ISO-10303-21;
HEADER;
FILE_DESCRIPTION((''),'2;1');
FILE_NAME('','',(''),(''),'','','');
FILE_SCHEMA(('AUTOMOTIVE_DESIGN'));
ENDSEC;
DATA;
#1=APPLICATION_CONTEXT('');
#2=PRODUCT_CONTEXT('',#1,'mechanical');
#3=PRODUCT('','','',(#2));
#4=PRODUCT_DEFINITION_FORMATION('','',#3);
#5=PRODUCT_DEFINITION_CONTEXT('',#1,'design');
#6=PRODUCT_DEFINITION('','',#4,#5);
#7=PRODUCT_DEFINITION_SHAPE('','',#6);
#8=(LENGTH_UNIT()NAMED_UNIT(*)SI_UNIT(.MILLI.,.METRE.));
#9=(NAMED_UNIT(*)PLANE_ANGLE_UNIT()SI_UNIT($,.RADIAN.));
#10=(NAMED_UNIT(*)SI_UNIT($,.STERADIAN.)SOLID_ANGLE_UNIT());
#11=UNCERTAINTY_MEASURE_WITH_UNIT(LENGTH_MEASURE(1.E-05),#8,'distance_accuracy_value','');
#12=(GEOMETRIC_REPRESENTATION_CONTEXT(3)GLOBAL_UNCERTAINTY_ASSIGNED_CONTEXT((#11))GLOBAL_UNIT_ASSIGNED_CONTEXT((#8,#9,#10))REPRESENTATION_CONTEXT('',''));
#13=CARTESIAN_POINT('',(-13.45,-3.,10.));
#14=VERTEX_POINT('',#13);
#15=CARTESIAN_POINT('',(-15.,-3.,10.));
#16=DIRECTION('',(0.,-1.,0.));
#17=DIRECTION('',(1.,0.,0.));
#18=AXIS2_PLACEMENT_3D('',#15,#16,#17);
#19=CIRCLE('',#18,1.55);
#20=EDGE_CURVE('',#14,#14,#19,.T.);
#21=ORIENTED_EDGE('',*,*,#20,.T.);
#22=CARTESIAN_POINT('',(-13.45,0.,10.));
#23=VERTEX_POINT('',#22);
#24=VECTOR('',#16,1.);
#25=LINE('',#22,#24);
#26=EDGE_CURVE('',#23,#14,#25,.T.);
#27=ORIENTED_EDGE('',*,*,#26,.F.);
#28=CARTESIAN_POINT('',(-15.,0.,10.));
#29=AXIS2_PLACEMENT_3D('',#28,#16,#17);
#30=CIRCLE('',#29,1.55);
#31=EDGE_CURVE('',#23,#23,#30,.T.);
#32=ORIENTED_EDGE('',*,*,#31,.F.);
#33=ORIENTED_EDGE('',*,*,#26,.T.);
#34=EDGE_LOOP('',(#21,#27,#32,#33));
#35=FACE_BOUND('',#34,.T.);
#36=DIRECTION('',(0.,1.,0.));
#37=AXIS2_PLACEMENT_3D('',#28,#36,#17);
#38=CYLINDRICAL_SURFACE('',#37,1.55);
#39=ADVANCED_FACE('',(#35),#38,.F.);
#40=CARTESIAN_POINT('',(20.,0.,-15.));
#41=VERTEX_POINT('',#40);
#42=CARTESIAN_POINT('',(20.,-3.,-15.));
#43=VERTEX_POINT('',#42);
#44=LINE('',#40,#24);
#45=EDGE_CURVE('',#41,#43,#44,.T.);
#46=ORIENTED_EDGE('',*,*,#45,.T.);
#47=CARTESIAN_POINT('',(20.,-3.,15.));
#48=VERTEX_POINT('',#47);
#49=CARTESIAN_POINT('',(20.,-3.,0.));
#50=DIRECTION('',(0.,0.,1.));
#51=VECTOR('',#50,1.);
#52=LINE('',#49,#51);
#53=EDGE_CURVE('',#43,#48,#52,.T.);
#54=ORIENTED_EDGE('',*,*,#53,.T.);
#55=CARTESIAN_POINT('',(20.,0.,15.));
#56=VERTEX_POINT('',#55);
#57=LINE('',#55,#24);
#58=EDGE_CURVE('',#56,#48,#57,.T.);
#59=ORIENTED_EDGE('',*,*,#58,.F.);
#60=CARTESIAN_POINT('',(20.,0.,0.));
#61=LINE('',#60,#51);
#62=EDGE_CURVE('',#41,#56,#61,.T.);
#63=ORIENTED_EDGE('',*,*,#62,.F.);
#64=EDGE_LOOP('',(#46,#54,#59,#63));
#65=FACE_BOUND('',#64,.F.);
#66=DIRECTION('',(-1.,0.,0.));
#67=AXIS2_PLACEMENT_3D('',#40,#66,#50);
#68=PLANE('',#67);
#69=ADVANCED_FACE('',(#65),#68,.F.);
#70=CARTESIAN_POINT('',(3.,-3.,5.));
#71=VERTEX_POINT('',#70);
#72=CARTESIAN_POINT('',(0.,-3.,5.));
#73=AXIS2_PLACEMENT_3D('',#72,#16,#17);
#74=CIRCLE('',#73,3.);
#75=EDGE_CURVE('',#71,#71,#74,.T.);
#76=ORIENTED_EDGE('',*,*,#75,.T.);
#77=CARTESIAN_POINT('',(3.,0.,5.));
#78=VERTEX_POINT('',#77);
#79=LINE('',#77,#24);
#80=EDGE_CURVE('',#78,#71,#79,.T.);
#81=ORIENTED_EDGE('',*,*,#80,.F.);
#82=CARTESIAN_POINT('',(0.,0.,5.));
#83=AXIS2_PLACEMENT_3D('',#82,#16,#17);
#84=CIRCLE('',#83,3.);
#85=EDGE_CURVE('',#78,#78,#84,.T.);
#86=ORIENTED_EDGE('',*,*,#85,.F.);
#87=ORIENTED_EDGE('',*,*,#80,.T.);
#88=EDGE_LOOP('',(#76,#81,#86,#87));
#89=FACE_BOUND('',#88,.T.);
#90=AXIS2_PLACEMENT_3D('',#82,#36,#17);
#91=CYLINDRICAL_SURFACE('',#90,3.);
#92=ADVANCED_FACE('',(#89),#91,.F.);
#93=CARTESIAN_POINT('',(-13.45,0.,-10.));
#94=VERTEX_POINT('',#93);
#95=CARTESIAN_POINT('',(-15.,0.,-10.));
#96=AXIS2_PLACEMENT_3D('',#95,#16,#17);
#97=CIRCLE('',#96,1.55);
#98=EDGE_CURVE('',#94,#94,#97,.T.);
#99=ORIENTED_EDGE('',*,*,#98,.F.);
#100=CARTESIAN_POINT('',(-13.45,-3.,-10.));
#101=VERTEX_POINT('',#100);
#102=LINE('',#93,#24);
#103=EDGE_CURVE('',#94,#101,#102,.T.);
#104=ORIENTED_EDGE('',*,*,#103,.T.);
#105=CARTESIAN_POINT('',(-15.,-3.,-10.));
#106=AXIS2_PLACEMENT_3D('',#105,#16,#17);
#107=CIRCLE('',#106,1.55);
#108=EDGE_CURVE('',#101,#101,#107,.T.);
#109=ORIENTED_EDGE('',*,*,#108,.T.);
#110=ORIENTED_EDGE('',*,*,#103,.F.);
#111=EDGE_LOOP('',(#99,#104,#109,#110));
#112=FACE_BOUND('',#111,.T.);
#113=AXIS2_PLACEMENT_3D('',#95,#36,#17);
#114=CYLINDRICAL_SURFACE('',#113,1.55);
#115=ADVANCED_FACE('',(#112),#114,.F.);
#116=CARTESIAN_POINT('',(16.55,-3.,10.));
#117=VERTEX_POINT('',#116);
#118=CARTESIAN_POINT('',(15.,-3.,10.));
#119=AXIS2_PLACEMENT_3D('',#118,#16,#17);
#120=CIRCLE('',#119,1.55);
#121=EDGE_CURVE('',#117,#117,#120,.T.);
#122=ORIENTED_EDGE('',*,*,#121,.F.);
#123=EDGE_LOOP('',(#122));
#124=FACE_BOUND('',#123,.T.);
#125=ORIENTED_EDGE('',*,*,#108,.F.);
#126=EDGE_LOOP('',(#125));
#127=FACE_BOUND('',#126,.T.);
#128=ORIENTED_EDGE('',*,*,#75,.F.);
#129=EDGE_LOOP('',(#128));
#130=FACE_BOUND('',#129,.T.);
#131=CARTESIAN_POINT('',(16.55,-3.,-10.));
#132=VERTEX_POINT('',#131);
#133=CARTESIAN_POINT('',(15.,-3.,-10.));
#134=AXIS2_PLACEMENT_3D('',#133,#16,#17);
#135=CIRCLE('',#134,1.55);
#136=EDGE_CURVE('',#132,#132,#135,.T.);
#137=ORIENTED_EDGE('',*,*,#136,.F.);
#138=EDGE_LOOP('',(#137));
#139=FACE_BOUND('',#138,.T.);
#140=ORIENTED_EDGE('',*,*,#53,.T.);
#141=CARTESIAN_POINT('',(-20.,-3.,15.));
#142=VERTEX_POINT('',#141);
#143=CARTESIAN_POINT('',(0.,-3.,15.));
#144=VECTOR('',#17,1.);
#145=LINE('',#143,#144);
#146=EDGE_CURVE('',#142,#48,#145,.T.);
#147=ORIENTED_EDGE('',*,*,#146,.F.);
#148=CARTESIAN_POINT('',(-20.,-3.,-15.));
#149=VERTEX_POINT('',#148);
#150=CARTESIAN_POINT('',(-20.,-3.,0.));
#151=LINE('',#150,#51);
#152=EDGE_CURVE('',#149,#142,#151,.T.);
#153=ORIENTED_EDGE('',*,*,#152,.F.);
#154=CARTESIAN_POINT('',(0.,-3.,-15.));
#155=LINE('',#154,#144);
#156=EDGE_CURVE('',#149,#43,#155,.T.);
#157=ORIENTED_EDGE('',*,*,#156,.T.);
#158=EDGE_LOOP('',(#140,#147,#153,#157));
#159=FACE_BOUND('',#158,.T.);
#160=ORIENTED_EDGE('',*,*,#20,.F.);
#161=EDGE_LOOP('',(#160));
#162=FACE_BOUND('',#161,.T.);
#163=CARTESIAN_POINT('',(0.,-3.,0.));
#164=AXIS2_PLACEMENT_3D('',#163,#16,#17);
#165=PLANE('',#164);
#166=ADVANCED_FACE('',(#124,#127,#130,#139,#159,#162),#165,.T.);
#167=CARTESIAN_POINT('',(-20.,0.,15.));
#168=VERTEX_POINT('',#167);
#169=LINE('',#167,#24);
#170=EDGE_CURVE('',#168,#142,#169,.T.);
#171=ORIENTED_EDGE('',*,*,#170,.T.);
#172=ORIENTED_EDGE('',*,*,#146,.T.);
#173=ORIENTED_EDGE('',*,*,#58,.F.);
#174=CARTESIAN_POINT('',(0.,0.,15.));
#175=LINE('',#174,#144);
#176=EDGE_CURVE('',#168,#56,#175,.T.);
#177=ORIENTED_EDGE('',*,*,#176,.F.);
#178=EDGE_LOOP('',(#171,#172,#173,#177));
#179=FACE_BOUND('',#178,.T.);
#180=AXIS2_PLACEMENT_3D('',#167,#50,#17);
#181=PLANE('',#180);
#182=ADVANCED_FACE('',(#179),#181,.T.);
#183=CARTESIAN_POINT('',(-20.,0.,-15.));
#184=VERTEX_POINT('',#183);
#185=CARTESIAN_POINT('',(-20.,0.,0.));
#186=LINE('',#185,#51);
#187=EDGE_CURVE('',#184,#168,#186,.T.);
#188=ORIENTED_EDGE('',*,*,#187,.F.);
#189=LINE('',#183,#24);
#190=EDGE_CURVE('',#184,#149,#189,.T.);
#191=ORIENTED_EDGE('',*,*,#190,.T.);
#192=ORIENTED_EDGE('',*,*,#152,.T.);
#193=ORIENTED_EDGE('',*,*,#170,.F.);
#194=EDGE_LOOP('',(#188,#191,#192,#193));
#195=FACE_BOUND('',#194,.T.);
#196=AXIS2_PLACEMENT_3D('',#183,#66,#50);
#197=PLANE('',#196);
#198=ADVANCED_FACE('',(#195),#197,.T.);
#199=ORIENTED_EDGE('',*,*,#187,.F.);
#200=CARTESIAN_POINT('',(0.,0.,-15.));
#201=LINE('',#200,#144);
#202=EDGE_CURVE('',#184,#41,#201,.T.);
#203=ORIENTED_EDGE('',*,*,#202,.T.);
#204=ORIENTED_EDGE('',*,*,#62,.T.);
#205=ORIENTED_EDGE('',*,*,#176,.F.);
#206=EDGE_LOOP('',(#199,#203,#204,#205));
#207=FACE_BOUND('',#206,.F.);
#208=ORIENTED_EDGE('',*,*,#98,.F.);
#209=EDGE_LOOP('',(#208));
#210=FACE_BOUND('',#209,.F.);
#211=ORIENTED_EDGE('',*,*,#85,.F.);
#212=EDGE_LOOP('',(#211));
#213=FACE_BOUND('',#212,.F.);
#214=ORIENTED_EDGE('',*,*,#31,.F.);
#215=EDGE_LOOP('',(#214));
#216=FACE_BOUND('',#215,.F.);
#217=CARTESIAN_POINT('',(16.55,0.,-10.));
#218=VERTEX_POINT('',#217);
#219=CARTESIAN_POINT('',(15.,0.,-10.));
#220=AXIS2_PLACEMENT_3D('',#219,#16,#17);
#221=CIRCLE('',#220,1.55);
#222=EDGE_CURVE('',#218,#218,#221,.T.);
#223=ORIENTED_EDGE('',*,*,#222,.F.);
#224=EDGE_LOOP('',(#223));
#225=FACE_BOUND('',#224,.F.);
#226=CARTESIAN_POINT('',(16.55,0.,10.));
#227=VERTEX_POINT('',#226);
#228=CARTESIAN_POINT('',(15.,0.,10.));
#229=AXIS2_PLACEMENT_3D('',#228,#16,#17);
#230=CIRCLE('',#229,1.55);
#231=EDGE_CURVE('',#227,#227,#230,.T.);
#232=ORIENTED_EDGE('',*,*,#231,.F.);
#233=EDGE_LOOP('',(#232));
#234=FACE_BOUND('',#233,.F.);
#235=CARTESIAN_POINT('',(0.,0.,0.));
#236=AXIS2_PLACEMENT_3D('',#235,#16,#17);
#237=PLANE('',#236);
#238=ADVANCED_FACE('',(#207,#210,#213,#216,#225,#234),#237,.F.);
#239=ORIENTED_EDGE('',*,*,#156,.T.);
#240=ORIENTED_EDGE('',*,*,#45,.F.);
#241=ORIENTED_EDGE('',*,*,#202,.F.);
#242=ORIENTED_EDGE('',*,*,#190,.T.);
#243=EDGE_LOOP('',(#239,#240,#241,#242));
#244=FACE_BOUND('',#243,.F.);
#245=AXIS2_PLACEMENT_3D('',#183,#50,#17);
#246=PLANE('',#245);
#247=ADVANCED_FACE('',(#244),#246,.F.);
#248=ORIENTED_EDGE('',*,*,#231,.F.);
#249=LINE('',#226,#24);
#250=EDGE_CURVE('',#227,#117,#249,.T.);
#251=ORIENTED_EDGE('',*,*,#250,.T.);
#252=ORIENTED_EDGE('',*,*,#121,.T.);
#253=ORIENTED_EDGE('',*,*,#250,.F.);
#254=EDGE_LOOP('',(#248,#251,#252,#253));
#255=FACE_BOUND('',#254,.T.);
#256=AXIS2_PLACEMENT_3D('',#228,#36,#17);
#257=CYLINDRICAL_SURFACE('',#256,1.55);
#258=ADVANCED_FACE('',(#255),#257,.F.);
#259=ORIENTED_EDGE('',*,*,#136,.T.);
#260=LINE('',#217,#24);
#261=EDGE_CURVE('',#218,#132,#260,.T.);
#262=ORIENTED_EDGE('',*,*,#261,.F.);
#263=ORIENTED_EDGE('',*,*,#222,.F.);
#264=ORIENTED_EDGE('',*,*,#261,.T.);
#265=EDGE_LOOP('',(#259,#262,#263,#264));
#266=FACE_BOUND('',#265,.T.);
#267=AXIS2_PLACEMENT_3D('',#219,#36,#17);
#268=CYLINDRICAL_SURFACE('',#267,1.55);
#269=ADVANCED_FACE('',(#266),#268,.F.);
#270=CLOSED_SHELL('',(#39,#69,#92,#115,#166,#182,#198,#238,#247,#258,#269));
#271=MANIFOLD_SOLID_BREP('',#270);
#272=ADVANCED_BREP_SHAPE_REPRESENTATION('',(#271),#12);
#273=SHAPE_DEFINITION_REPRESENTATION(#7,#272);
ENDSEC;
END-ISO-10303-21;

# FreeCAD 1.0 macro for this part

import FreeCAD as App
import Part
import Sketcher
from FreeCAD import Vector

doc = App.newDocument("Part")
body = doc.addObject("PartDesign::Body", "Body")

sketch1 = doc.addObject("Sketcher::SketchObject", "Sketch")
body.addObject(sketch1)
sketch1.AttachmentSupport = (doc.XZ_Plane, [""])
sketch1.MapMode = "FlatFace"
sketch1.addGeometry(Part.LineSegment(Vector(-20, 15, 0), Vector(-20, -15, 0)), False)
sketch1.addGeometry(Part.LineSegment(Vector(-20, -15, 0), Vector(20, -15, 0)), False)
sketch1.addGeometry(Part.LineSegment(Vector(20, -15, 0), Vector(20, 15, 0)), False)
sketch1.addGeometry(Part.LineSegment(Vector(20, 15, 0), Vector(-20, 15, 0)), False)
sketch1.addGeometry(Part.Circle(Vector(-15, -10, 0), Vector(0, 0, 1), 1.6), False)
sketch1.addGeometry(Part.Circle(Vector(15, -10, 0), Vector(0, 0, 1), 1.6), False)
sketch1.addGeometry(Part.Circle(Vector(-15, 10, 0), Vector(0, 0, 1), 1.6), False)
sketch1.addGeometry(Part.Circle(Vector(0, 5, 0), Vector(0, 0, 1), 3), False)
sketch1.addGeometry(Part.Circle(Vector(15, 10, 0), Vector(0, 0, 1), 1.6), False)
sketch1.addConstraint(Sketcher.Constraint("Coincident", 0, 2, 1, 1))
sketch1.addConstraint(Sketcher.Constraint("Coincident", 1, 2, 2, 1))
sketch1.addConstraint(Sketcher.Constraint("Coincident", 2, 2, 3, 1))
sketch1.addConstraint(Sketcher.Constraint("Coincident", 3, 2, 0, 1))
sketch1.addConstraint(Sketcher.Constraint("Vertical", 0))
sketch1.addConstraint(Sketcher.Constraint("Horizontal", 1))
sketch1.addConstraint(Sketcher.Constraint("Vertical", 2))
sketch1.addConstraint(Sketcher.Constraint("Horizontal", 3))
sketch1.addConstraint(Sketcher.Constraint("Equal", 4, 5))
sketch1.addConstraint(Sketcher.Constraint("Equal", 5, 6))
sketch1.addConstraint(Sketcher.Constraint("Equal", 6, 8))
sketch1.addConstraint(Sketcher.Constraint("Symmetric", 5, 3, 6, 3, -1, 1))
sketch1.addConstraint(Sketcher.Constraint("Symmetric", 4, 3, 8, 3, -1, 1))
sketch1.addConstraint(Sketcher.Constraint("Symmetric", 0, 2, 2, 2, -1, 1))
sketch1.addConstraint(Sketcher.Constraint("Symmetric", 4, 3, 5, 3, -2))
sketch1.addConstraint(Sketcher.Constraint("PointOnObject", 7, 3, -2))
sketch1.addConstraint(Sketcher.Constraint("Diameter", 7, 6.0))
sketch1.addConstraint(Sketcher.Constraint("Diameter", 4, 3.1))
sketch1.addConstraint(Sketcher.Constraint("DistanceX", 1, 1, 1, 2, 40.0))
sketch1.addConstraint(Sketcher.Constraint("DistanceY", 0, 2, 0, 1, 30.0))
sketch1.addConstraint(Sketcher.Constraint("DistanceX", 4, 3, -1, 1, 15.0))
sketch1.addConstraint(Sketcher.Constraint("DistanceY", 4, 3, -1, 1, 10.0))
sketch1.addConstraint(Sketcher.Constraint("DistanceY", -1, 1, 7, 3, 5.0))
pad1 = doc.addObject("PartDesign::Pad", "Pad")
body.addObject(pad1)
pad1.Profile = sketch1
pad1.Length = 3

doc.recompute()
